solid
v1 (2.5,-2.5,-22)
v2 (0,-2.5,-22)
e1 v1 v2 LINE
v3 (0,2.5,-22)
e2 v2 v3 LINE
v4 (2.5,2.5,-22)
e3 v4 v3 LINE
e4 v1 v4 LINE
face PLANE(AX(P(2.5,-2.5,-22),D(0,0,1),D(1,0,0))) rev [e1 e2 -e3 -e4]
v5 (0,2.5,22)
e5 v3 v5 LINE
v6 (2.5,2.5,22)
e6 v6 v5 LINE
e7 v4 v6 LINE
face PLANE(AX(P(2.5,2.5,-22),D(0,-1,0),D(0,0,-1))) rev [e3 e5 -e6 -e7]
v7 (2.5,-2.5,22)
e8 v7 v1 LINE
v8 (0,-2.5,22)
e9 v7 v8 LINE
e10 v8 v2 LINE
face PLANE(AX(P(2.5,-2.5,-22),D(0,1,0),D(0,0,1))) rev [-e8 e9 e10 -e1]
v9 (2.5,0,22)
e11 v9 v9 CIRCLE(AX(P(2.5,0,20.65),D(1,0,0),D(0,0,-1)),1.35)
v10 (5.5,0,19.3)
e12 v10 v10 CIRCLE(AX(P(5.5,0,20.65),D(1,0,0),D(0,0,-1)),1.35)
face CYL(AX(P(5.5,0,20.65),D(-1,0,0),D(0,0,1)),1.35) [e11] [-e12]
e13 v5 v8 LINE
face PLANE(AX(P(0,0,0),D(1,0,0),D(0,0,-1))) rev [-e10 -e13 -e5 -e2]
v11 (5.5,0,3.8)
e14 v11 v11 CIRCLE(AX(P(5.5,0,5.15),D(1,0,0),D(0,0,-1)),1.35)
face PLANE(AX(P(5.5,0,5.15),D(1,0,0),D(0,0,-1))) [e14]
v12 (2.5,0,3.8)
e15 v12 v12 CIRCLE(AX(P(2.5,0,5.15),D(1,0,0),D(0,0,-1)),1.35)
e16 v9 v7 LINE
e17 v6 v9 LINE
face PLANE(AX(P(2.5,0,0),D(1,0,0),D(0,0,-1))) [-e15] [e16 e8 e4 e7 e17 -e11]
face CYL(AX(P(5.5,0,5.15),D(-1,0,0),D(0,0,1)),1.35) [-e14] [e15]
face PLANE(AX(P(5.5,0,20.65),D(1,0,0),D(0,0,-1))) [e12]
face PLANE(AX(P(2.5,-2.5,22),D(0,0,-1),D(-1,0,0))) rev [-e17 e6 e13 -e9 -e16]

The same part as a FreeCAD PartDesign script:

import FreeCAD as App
import Part
import Sketcher


def add_polygon(sketch, points):
    """Adds a closed chain of lines whose ends are joined by coincident constraints."""
    first, n = sketch.GeometryCount, len(points)
    for a, b in zip(points, points[1:] + points[:1]):
        sketch.addGeometry(Part.LineSegment(App.Vector(*a, 0), App.Vector(*b, 0)), False)
    for i in range(n):
        sketch.addConstraint(Sketcher.Constraint("Coincident", first + i, 2, first + (i + 1) % n, 1))

doc = App.newDocument("Part")
body = doc.addObject("PartDesign::Body", "Body")

# Sketch on YZ plane
sketch1 = body.newObject("Sketcher::SketchObject", "Sketch")
sketch1.AttachmentSupport = (doc.getObject("YZ_Plane"), [""])
sketch1.MapMode = "FlatFace"
add_polygon(sketch1, [(2, 22), (-2, 22), (-2, -22), (2, -22)])  # lines 0-3
sketch1.addConstraint(Sketcher.Constraint("Horizontal", 0))
sketch1.addConstraint(Sketcher.Constraint("Vertical", 1))
sketch1.addConstraint(Sketcher.Constraint("Horizontal", 2))
sketch1.addConstraint(Sketcher.Constraint("Vertical", 3))
sketch1.addConstraint(Sketcher.Constraint("Symmetric", 0, 2, 2, 2, -1, 1))
sketch1.addConstraint(Sketcher.Constraint("DistanceX", 0, 2, 0, 1, 5.0))
sketch1.addConstraint(Sketcher.Constraint("DistanceY", 1, 2, 1, 1, 44.0))
pad1 = body.newObject("PartDesign::Pad", "Pad")
pad1.Profile = sketch1
pad1.Length = 2.5

# Sketch on YZ plane
sketch2 = body.newObject("Sketcher::SketchObject", "Sketch001")
sketch2.AttachmentSupport = (doc.getObject("YZ_Plane"), [""])
sketch2.MapMode = "FlatFace"
sketch2.AttachmentOffset = App.Placement(App.Vector(0, 0, 2.5), App.Rotation())
sketch2.addGeometry(Part.Circle(App.Vector(0, 20.6, 0), App.Vector(0, 0, 1), 1.4), False)
sketch2.addGeometry(Part.Circle(App.Vector(0, 5.2, 0), App.Vector(0, 0, 1), 1.4), False)
sketch2.addConstraint(Sketcher.Constraint("Equal", 0, 1))
sketch2.addConstraint(Sketcher.Constraint("PointOnObject", 0, 3, -2))
sketch2.addConstraint(Sketcher.Constraint("PointOnObject", 1, 3, -2))
sketch2.addConstraint(Sketcher.Constraint("Diameter", 0, 2.7))
sketch2.addConstraint(Sketcher.Constraint("DistanceY", 1, 3, 0, 3, 15.5))
sketch2.addConstraint(Sketcher.Constraint("DistanceY", -1, 1, 0, 3, 20.65))
pad2 = body.newObject("PartDesign::Pad", "Pad001")
pad2.Profile = sketch2
pad2.Length = 3

doc.recompute()
